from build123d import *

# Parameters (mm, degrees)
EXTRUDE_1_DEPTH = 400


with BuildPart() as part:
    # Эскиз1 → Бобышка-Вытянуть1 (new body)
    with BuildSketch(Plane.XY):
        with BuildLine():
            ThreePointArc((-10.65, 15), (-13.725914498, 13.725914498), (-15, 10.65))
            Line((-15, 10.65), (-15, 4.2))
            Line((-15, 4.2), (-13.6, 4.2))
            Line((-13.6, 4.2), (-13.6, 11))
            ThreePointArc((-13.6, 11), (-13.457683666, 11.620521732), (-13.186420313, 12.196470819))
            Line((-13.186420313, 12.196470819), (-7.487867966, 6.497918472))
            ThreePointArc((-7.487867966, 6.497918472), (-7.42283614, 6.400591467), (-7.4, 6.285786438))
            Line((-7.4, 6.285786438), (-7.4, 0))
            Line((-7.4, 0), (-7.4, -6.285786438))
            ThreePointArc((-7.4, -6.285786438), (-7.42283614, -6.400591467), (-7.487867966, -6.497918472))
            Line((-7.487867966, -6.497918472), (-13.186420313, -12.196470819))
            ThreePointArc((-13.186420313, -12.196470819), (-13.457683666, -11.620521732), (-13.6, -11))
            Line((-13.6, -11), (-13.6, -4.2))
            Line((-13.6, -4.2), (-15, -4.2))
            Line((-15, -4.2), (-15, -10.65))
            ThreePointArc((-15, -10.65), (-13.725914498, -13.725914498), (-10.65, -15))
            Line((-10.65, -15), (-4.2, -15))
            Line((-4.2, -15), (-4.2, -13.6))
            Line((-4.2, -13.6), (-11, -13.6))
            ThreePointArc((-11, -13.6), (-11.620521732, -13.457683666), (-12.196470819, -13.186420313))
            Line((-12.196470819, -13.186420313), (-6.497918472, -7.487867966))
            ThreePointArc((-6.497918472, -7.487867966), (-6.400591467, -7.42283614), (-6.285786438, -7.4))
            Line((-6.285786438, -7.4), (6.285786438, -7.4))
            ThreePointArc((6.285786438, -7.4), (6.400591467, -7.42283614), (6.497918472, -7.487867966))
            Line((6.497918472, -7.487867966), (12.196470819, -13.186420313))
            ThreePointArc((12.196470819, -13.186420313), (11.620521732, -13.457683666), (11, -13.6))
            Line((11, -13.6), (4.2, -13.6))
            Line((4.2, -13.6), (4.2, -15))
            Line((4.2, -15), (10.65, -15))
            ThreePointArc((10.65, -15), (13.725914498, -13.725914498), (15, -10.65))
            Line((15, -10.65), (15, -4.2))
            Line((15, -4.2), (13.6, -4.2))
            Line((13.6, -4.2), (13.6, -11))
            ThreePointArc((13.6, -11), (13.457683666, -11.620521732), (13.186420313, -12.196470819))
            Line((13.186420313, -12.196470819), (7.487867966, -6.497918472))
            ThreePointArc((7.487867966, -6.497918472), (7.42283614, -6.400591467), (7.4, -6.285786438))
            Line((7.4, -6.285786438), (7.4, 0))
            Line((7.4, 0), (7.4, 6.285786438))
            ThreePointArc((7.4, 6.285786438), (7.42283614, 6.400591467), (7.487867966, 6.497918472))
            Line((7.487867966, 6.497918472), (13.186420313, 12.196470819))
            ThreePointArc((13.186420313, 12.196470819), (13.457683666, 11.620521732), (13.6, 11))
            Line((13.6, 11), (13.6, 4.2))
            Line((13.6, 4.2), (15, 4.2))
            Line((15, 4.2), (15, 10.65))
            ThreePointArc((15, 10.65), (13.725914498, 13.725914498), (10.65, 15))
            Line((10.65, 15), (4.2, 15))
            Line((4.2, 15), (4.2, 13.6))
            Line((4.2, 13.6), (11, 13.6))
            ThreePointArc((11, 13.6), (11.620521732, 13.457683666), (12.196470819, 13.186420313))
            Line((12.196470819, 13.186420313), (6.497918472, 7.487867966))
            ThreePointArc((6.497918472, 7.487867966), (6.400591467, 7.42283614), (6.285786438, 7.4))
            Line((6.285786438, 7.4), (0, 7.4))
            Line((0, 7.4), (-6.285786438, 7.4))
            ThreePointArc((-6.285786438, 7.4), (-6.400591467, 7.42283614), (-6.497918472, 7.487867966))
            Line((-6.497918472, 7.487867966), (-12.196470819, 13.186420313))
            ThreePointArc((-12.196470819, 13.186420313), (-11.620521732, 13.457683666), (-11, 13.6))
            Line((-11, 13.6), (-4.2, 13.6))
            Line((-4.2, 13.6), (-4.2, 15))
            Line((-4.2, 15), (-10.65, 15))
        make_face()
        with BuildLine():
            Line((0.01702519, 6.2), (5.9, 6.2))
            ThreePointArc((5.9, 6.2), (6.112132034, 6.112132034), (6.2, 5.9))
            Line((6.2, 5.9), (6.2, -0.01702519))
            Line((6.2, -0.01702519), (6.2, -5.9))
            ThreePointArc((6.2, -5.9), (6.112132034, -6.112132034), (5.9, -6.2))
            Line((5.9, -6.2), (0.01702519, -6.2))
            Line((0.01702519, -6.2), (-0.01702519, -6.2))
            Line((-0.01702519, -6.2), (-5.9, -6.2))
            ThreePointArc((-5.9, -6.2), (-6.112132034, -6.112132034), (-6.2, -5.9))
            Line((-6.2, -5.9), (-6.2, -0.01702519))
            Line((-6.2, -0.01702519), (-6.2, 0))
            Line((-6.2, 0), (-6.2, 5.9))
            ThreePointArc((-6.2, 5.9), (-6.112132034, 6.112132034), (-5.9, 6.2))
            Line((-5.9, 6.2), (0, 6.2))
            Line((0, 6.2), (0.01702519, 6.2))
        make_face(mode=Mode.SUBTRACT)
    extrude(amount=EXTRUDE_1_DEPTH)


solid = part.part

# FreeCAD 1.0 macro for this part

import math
import FreeCAD as App
import Part
import Sketcher
Q = App.Units.Quantity

doc = App.newDocument("Part")
body = doc.addObject("PartDesign::Body", "Body")

sketch1 = body.newObject("Sketcher::SketchObject", "Sketch")
sketch1.AttachmentSupport = (doc.getObject("XY_Plane"), [""])
sketch1.MapMode = "FlatFace"
sketch1.addGeometry([
    Part.ArcOfCircle(Part.Circle(App.Vector(-10.65, 10.65, 0), App.Vector(0, 0, 1), 4.35), math.radians(90), math.radians(180)),
    Part.LineSegment(App.Vector(-15, 10.65, 0), App.Vector(-15, 4.2, 0)),
    Part.LineSegment(App.Vector(-15, 4.2, 0), App.Vector(-13.6, 4.2, 0)),
    Part.LineSegment(App.Vector(-13.6, 4.2, 0), App.Vector(-13.6, 11, 0)),
    Part.ArcOfCircle(Part.Circle(App.Vector(-10.65, 10.65, 0), App.Vector(0, 0, 1), 2.97), math.radians(149), math.radians(173)),
    Part.LineSegment(App.Vector(-13.19, 12.2, 0), App.Vector(-7.49, 6.5, 0)),
    Part.ArcOfCircle(Part.Circle(App.Vector(-7.7, 6.29, 0), App.Vector(0, 0, 1), 0.3), math.radians(0), math.radians(45)),
    Part.LineSegment(App.Vector(-7.4, 6.29, 0), App.Vector(-7.4, -6.29, 0)),
    Part.ArcOfCircle(Part.Circle(App.Vector(-7.7, -6.29, 0), App.Vector(0, 0, 1), 0.3), math.radians(-45), math.radians(0)),
    Part.LineSegment(App.Vector(-7.49, -6.5, 0), App.Vector(-13.19, -12.2, 0)),
    Part.ArcOfCircle(Part.Circle(App.Vector(-10.65, -10.65, 0), App.Vector(0, 0, 1), 2.97), math.radians(-173), math.radians(-149)),
    Part.LineSegment(App.Vector(-13.6, -11, 0), App.Vector(-13.6, -4.2, 0)),
    Part.LineSegment(App.Vector(-13.6, -4.2, 0), App.Vector(-15, -4.2, 0)),
    Part.LineSegment(App.Vector(-15, -4.2, 0), App.Vector(-15, -10.65, 0)),
    Part.ArcOfCircle(Part.Circle(App.Vector(-10.65, -10.65, 0), App.Vector(0, 0, 1), 4.35), math.radians(-180), math.radians(-90)),
    Part.LineSegment(App.Vector(-10.65, -15, 0), App.Vector(-4.2, -15, 0)),
    Part.LineSegment(App.Vector(-4.2, -15, 0), App.Vector(-4.2, -13.6, 0)),
    Part.LineSegment(App.Vector(-4.2, -13.6, 0), App.Vector(-11, -13.6, 0)),
    Part.ArcOfCircle(Part.Circle(App.Vector(-10.65, -10.65, 0), App.Vector(0, 0, 1), 2.97), math.radians(-121), math.radians(-97)),
    Part.LineSegment(App.Vector(-12.2, -13.19, 0), App.Vector(-6.5, -7.49, 0)),
    Part.ArcOfCircle(Part.Circle(App.Vector(-6.29, -7.7, 0), App.Vector(0, 0, 1), 0.3), math.radians(90), math.radians(135)),
    Part.LineSegment(App.Vector(-6.29, -7.4, 0), App.Vector(6.29, -7.4, 0)),
    Part.ArcOfCircle(Part.Circle(App.Vector(6.29, -7.7, 0), App.Vector(0, 0, 1), 0.3), math.radians(45), math.radians(90)),
    Part.LineSegment(App.Vector(6.5, -7.49, 0), App.Vector(12.2, -13.19, 0)),
    Part.ArcOfCircle(Part.Circle(App.Vector(10.65, -10.65, 0), App.Vector(0, 0, 1), 2.97), math.radians(-83), math.radians(-59)),
    Part.LineSegment(App.Vector(11, -13.6, 0), App.Vector(4.2, -13.6, 0)),
    Part.LineSegment(App.Vector(4.2, -13.6, 0), App.Vector(4.2, -15, 0)),
    Part.LineSegment(App.Vector(4.2, -15, 0), App.Vector(10.65, -15, 0)),
    Part.ArcOfCircle(Part.Circle(App.Vector(10.65, -10.65, 0), App.Vector(0, 0, 1), 4.35), math.radians(-90), math.radians(0)),
    Part.LineSegment(App.Vector(15, -10.65, 0), App.Vector(15, -4.2, 0)),
    Part.LineSegment(App.Vector(15, -4.2, 0), App.Vector(13.6, -4.2, 0)),
    Part.LineSegment(App.Vector(13.6, -4.2, 0), App.Vector(13.6, -11, 0)),
    Part.ArcOfCircle(Part.Circle(App.Vector(10.65, -10.65, 0), App.Vector(0, 0, 1), 2.97), math.radians(-31), math.radians(-7)),
    Part.LineSegment(App.Vector(13.19, -12.2, 0), App.Vector(7.49, -6.5, 0)),
    Part.ArcOfCircle(Part.Circle(App.Vector(7.7, -6.29, 0), App.Vector(0, 0, 1), 0.3), math.radians(180), math.radians(225)),
    Part.LineSegment(App.Vector(7.4, -6.29, 0), App.Vector(7.4, 6.29, 0)),
    Part.ArcOfCircle(Part.Circle(App.Vector(7.7, 6.29, 0), App.Vector(0, 0, 1), 0.3), math.radians(135), math.radians(180)),
    Part.LineSegment(App.Vector(7.49, 6.5, 0), App.Vector(13.19, 12.2, 0)),
    Part.ArcOfCircle(Part.Circle(App.Vector(10.65, 10.65, 0), App.Vector(0, 0, 1), 2.97), math.radians(7), math.radians(31)),
    Part.LineSegment(App.Vector(13.6, 11, 0), App.Vector(13.6, 4.2, 0)),
    Part.LineSegment(App.Vector(13.6, 4.2, 0), App.Vector(15, 4.2, 0)),
    Part.LineSegment(App.Vector(15, 4.2, 0), App.Vector(15, 10.65, 0)),
    Part.ArcOfCircle(Part.Circle(App.Vector(10.65, 10.65, 0), App.Vector(0, 0, 1), 4.35), math.radians(0), math.radians(90)),
    Part.LineSegment(App.Vector(10.65, 15, 0), App.Vector(4.2, 15, 0)),
    Part.LineSegment(App.Vector(4.2, 15, 0), App.Vector(4.2, 13.6, 0)),
    Part.LineSegment(App.Vector(4.2, 13.6, 0), App.Vector(11, 13.6, 0)),
    Part.ArcOfCircle(Part.Circle(App.Vector(10.65, 10.65, 0), App.Vector(0, 0, 1), 2.97), math.radians(59), math.radians(83)),
    Part.LineSegment(App.Vector(12.2, 13.19, 0), App.Vector(6.5, 7.49, 0)),
    Part.ArcOfCircle(Part.Circle(App.Vector(6.29, 7.7, 0), App.Vector(0, 0, 1), 0.3), math.radians(-90), math.radians(-45)),
    Part.LineSegment(App.Vector(6.29, 7.4, 0), App.Vector(-6.29, 7.4, 0)),
    Part.ArcOfCircle(Part.Circle(App.Vector(-6.29, 7.7, 0), App.Vector(0, 0, 1), 0.3), math.radians(-135), math.radians(-90)),
    Part.LineSegment(App.Vector(-6.5, 7.49, 0), App.Vector(-12.2, 13.19, 0)),
    Part.ArcOfCircle(Part.Circle(App.Vector(-10.65, 10.65, 0), App.Vector(0, 0, 1), 2.97), math.radians(97), math.radians(121)),
    Part.LineSegment(App.Vector(-11, 13.6, 0), App.Vector(-4.2, 13.6, 0)),
    Part.LineSegment(App.Vector(-4.2, 13.6, 0), App.Vector(-4.2, 15, 0)),
    Part.LineSegment(App.Vector(-4.2, 15, 0), App.Vector(-10.65, 15, 0)),
    Part.LineSegment(App.Vector(-5.9, 6.2, 0), App.Vector(5.9, 6.2, 0)),
    Part.ArcOfCircle(Part.Circle(App.Vector(5.9, 5.9, 0), App.Vector(0, 0, 1), 0.3), math.radians(0), math.radians(90)),
    Part.LineSegment(App.Vector(6.2, 5.9, 0), App.Vector(6.2, -5.9, 0)),
    Part.ArcOfCircle(Part.Circle(App.Vector(5.9, -5.9, 0), App.Vector(0, 0, 1), 0.3), math.radians(-90), math.radians(0)),
    Part.LineSegment(App.Vector(5.9, -6.2, 0), App.Vector(-5.9, -6.2, 0)),
    Part.ArcOfCircle(Part.Circle(App.Vector(-5.9, -5.9, 0), App.Vector(0, 0, 1), 0.3), math.radians(-180), math.radians(-90)),
    Part.LineSegment(App.Vector(-6.2, -5.9, 0), App.Vector(-6.2, 5.9, 0)),
    Part.ArcOfCircle(Part.Circle(App.Vector(-5.9, 5.9, 0), App.Vector(0, 0, 1), 0.3), math.radians(90), math.radians(180)),
], False)
sketch1.addConstraint([
    Sketcher.Constraint("Tangent", 0, 2, 1, 1),
    Sketcher.Constraint("Coincident", 1, 2, 2, 1),
    Sketcher.Constraint("Coincident", 2, 2, 3, 1),
    Sketcher.Constraint("Coincident", 3, 2, 4, 2),
    Sketcher.Constraint("Coincident", 4, 1, 5, 1),
    Sketcher.Constraint("Tangent", 5, 2, 6, 2),
    Sketcher.Constraint("Tangent", 6, 1, 7, 1),
    Sketcher.Constraint("Tangent", 7, 2, 8, 2),
    Sketcher.Constraint("Tangent", 8, 1, 9, 1),
    Sketcher.Constraint("Coincident", 9, 2, 10, 2),
    Sketcher.Constraint("Coincident", 10, 1, 11, 1),
    Sketcher.Constraint("Coincident", 11, 2, 12, 1),
    Sketcher.Constraint("Coincident", 12, 2, 13, 1),
    Sketcher.Constraint("Tangent", 13, 2, 14, 1),
    Sketcher.Constraint("Tangent", 14, 2, 15, 1),
    Sketcher.Constraint("Coincident", 15, 2, 16, 1),
    Sketcher.Constraint("Coincident", 16, 2, 17, 1),
    Sketcher.Constraint("Coincident", 17, 2, 18, 2),
    Sketcher.Constraint("Coincident", 18, 1, 19, 1),
    Sketcher.Constraint("Tangent", 19, 2, 20, 2),
    Sketcher.Constraint("Tangent", 20, 1, 21, 1),
    Sketcher.Constraint("Tangent", 21, 2, 22, 2),
    Sketcher.Constraint("Tangent", 22, 1, 23, 1),
    Sketcher.Constraint("Coincident", 23, 2, 24, 2),
    Sketcher.Constraint("Coincident", 24, 1, 25, 1),
    Sketcher.Constraint("Coincident", 25, 2, 26, 1),
    Sketcher.Constraint("Coincident", 26, 2, 27, 1),
    Sketcher.Constraint("Tangent", 27, 2, 28, 1),
    Sketcher.Constraint("Tangent", 28, 2, 29, 1),
    Sketcher.Constraint("Coincident", 29, 2, 30, 1),
    Sketcher.Constraint("Coincident", 30, 2, 31, 1),
    Sketcher.Constraint("Coincident", 31, 2, 32, 2),
    Sketcher.Constraint("Coincident", 32, 1, 33, 1),
    Sketcher.Constraint("Tangent", 33, 2, 34, 2),
    Sketcher.Constraint("Tangent", 34, 1, 35, 1),
    Sketcher.Constraint("Tangent", 35, 2, 36, 2),
    Sketcher.Constraint("Tangent", 36, 1, 37, 1),
    Sketcher.Constraint("Coincident", 37, 2, 38, 2),
    Sketcher.Constraint("Coincident", 38, 1, 39, 1),
    Sketcher.Constraint("Coincident", 39, 2, 40, 1),
    Sketcher.Constraint("Coincident", 40, 2, 41, 1),
    Sketcher.Constraint("Tangent", 41, 2, 42, 1),
    Sketcher.Constraint("Tangent", 42, 2, 43, 1),
    Sketcher.Constraint("Coincident", 43, 2, 44, 1),
    Sketcher.Constraint("Coincident", 44, 2, 45, 1),
    Sketcher.Constraint("Coincident", 45, 2, 46, 2),
    Sketcher.Constraint("Coincident", 46, 1, 47, 1),
    Sketcher.Constraint("Tangent", 47, 2, 48, 2),
    Sketcher.Constraint("Tangent", 48, 1, 49, 1),
    Sketcher.Constraint("Tangent", 49, 2, 50, 2),
    Sketcher.Constraint("Tangent", 50, 1, 51, 1),
    Sketcher.Constraint("Coincident", 51, 2, 52, 2),
    Sketcher.Constraint("Coincident", 52, 1, 53, 1),
    Sketcher.Constraint("Coincident", 53, 2, 54, 1),
    Sketcher.Constraint("Coincident", 54, 2, 55, 1),
    Sketcher.Constraint("Tangent", 55, 2, 0, 1),
    Sketcher.Constraint("Tangent", 56, 2, 57, 2),
    Sketcher.Constraint("Tangent", 57, 1, 58, 1),
    Sketcher.Constraint("Tangent", 58, 2, 59, 2),
    Sketcher.Constraint("Tangent", 59, 1, 60, 1),
    Sketcher.Constraint("Tangent", 60, 2, 61, 2),
    Sketcher.Constraint("Tangent", 61, 1, 62, 1),
    Sketcher.Constraint("Tangent", 62, 2, 63, 2),
    Sketcher.Constraint("Tangent", 63, 1, 56, 1),
    Sketcher.Constraint("Vertical", 1),
    Sketcher.Constraint("Horizontal", 2),
    Sketcher.Constraint("Vertical", 3),
    Sketcher.Constraint("Vertical", 7),
    Sketcher.Constraint("Vertical", 11),
    Sketcher.Constraint("Horizontal", 12),
    Sketcher.Constraint("Vertical", 13),
    Sketcher.Constraint("Horizontal", 15),
    Sketcher.Constraint("Vertical", 16),
    Sketcher.Constraint("Horizontal", 17),
    Sketcher.Constraint("Horizontal", 21),
    Sketcher.Constraint("Horizontal", 25),
    Sketcher.Constraint("Vertical", 26),
    Sketcher.Constraint("Horizontal", 27),
    Sketcher.Constraint("Vertical", 29),
    Sketcher.Constraint("Horizontal", 30),
    Sketcher.Constraint("Vertical", 31),
    Sketcher.Constraint("Vertical", 35),
    Sketcher.Constraint("Vertical", 39),
    Sketcher.Constraint("Horizontal", 40),
    Sketcher.Constraint("Vertical", 41),
    Sketcher.Constraint("Horizontal", 43),
    Sketcher.Constraint("Vertical", 44),
    Sketcher.Constraint("Horizontal", 45),
    Sketcher.Constraint("Horizontal", 49),
    Sketcher.Constraint("Horizontal", 53),
    Sketcher.Constraint("Vertical", 54),
    Sketcher.Constraint("Horizontal", 55),
    Sketcher.Constraint("Horizontal", 56),
    Sketcher.Constraint("Vertical", 58),
    Sketcher.Constraint("Horizontal", 60),
    Sketcher.Constraint("Vertical", 62),
    Sketcher.Constraint("Coincident", 4, 3, 0, 3),
    Sketcher.Constraint("Coincident", 14, 3, 10, 3),
    Sketcher.Constraint("Coincident", 18, 3, 10, 3),
    Sketcher.Constraint("Coincident", 28, 3, 24, 3),
    Sketcher.Constraint("Coincident", 32, 3, 24, 3),
    Sketcher.Constraint("Coincident", 42, 3, 38, 3),
    Sketcher.Constraint("Coincident", 46, 3, 38, 3),
    Sketcher.Constraint("Coincident", 52, 3, 0, 3),
    Sketcher.Constraint("Equal", 6, 8),
    Sketcher.Constraint("Equal", 4, 10),
    Sketcher.Constraint("Equal", 0, 14),
    Sketcher.Constraint("Equal", 10, 18),
    Sketcher.Constraint("Equal", 8, 20),
    Sketcher.Constraint("Equal", 20, 22),
    Sketcher.Constraint("Equal", 18, 24),
    Sketcher.Constraint("Equal", 14, 28),
    Sketcher.Constraint("Equal", 24, 32),
    Sketcher.Constraint("Equal", 22, 34),
    Sketcher.Constraint("Equal", 34, 36),
    Sketcher.Constraint("Equal", 32, 38),
    Sketcher.Constraint("Equal", 28, 42),
    Sketcher.Constraint("Equal", 38, 46),
    Sketcher.Constraint("Equal", 36, 48),
    Sketcher.Constraint("Equal", 48, 50),
    Sketcher.Constraint("Equal", 46, 52),
    Sketcher.Constraint("Equal", 50, 57),
    Sketcher.Constraint("Equal", 57, 59),
    Sketcher.Constraint("Equal", 59, 61),
    Sketcher.Constraint("Equal", 61, 63),
    Sketcher.Constraint("Symmetric", 0, 3, 24, 3, -1, 1),
    Sketcher.Constraint("Symmetric", 6, 3, 34, 3, -1, 1),
    Sketcher.Constraint("Symmetric", 10, 3, 38, 3, -1, 1),
    Sketcher.Constraint("Symmetric", 20, 3, 48, 3, -1, 1),
    Sketcher.Constraint("Symmetric", 57, 3, 61, 3, -1, 1),
    Sketcher.Constraint("Symmetric", 2, 2, 30, 2, -1, 1),
    Sketcher.Constraint("Symmetric", 8, 1, 36, 1, -1, 1),
    Sketcher.Constraint("Symmetric", 11, 2, 39, 2, -1, 1),
    Sketcher.Constraint("Symmetric", 16, 2, 44, 2, -1, 1),
    Sketcher.Constraint("Symmetric", 22, 1, 50, 1, -1, 1),
    Sketcher.Constraint("Symmetric", 25, 2, 53, 2, -1, 1),
    Sketcher.Constraint("Symmetric", 10, 3, 24, 3, -2),
    Sketcher.Constraint("Symmetric", 19, 2, 22, 1, -2),
    Sketcher.Constraint("Symmetric", 16, 2, 25, 2, -2),
    Sketcher.Constraint("Symmetric", 11, 2, 30, 2, -2),
    Sketcher.Constraint("Symmetric", 8, 1, 33, 2, -2),
    Sketcher.Constraint("Perpendicular", 5, 9),
    Sketcher.Constraint("Parallel", 9, 19),
    Sketcher.Constraint("Perpendicular", 19, 23),
    Sketcher.Constraint("Parallel", 37, 47),
    Sketcher.Constraint("Equal", 55, 1),
    Sketcher.Constraint("Equal", 53, 3),
    Sketcher.Constraint("Equal", 49, 7),
    Sketcher.Constraint("Equal", 60, 58),
    Sketcher.Constraint("Equal", 9, 19),
    Sketcher.Constraint("Radius", 6, Q("0.3 mm")),
    Sketcher.Constraint("Radius", 0, Q("4.35 mm")),
    Sketcher.Constraint("DistanceX", 2, 1, 2, 2, Q("1.4 mm")),
    Sketcher.Constraint("DistanceX", 17, 2, 17, 1, Q("6.8 mm")),
    Sketcher.Constraint("DistanceX", 56, 1, 56, 2, Q("11.8 mm")),
    Sketcher.Constraint("DistanceX", 0, 2, -1, 1, Q("15 mm")),
    Sketcher.Constraint("DistanceY", -1, 1, 3, 2, Q("11 mm")),
    Sketcher.Constraint("DistanceY", 14, 2, -1, 1, Q("15 mm")),
    Sketcher.Constraint("DistanceX", 6, 3, -1, 1, Q("7.7 mm")),
    Sketcher.Constraint("Distance", 5, Q("8.05897 mm")),
])
pad1 = body.newObject("PartDesign::Pad", "Pad")
pad1.Profile = sketch1
pad1.Length = 400

doc.recompute()
